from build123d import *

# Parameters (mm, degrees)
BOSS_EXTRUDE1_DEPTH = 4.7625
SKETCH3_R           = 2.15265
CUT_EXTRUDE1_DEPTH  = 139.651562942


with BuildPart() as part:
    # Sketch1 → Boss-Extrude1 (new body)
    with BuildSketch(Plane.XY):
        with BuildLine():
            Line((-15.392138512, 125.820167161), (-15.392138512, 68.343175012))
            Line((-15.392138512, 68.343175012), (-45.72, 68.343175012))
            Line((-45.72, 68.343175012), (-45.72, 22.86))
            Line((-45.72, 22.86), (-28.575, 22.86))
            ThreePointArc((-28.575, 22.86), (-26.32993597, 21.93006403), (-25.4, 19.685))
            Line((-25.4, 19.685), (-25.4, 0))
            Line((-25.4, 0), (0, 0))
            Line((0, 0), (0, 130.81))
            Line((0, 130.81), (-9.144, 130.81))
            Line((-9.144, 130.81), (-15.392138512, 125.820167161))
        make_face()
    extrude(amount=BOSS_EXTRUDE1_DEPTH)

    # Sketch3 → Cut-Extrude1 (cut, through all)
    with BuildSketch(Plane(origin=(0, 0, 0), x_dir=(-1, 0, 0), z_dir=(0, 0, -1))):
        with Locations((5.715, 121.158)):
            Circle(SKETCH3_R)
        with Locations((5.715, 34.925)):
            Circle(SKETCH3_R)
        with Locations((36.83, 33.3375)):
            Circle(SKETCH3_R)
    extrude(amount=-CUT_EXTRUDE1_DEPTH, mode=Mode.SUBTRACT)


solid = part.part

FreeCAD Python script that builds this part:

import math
import FreeCAD as App
import Part
import Sketcher

V = App.Vector
Q = App.Units.Quantity

doc = App.newDocument("Part")
body = doc.addObject("PartDesign::Body", "Body")

sketch1 = body.newObject("Sketcher::SketchObject", "Sketch")
sketch1.AttachmentSupport = (doc.getObject("XY_Plane"), [""])
sketch1.MapMode = "FlatFace"
sketch1.addGeometry(Part.LineSegment(V(-15.4, 125.8, 0), V(-15.4, 68.3, 0)), False)
sketch1.addGeometry(Part.LineSegment(V(-15.4, 68.3, 0), V(-45.7, 68.3, 0)), False)
sketch1.addGeometry(Part.LineSegment(V(-45.7, 68.3, 0), V(-45.7, 22.9, 0)), False)
sketch1.addGeometry(Part.LineSegment(V(-45.7, 22.9, 0), V(-28.6, 22.9, 0)), False)
sketch1.addGeometry(Part.ArcOfCircle(Part.Circle(V(-28.6, 19.7, 0), V(0, 0, 1), 3.2), math.radians(0), math.radians(90)), False)
sketch1.addGeometry(Part.LineSegment(V(-25.4, 19.7, 0), V(-25.4, 0, 0)), False)
sketch1.addGeometry(Part.LineSegment(V(-25.4, 0, 0), V(0, 0, 0)), False)
sketch1.addGeometry(Part.LineSegment(V(0, 0, 0), V(0, 130.8, 0)), False)
sketch1.addGeometry(Part.LineSegment(V(0, 130.8, 0), V(-9.1, 130.8, 0)), False)
sketch1.addGeometry(Part.LineSegment(V(-9.1, 130.8, 0), V(-15.4, 125.8, 0)), False)
sketch1.addConstraint(Sketcher.Constraint("Coincident", 0, 2, 1, 1))
sketch1.addConstraint(Sketcher.Constraint("Coincident", 1, 2, 2, 1))
sketch1.addConstraint(Sketcher.Constraint("Coincident", 2, 2, 3, 1))
sketch1.addConstraint(Sketcher.Constraint("Tangent", 3, 2, 4, 2))
sketch1.addConstraint(Sketcher.Constraint("Tangent", 4, 1, 5, 1))
sketch1.addConstraint(Sketcher.Constraint("Coincident", 5, 2, 6, 1))
sketch1.addConstraint(Sketcher.Constraint("Coincident", 6, 2, 7, 1))
sketch1.addConstraint(Sketcher.Constraint("Coincident", 7, 2, 8, 1))
sketch1.addConstraint(Sketcher.Constraint("Coincident", 8, 2, 9, 1))
sketch1.addConstraint(Sketcher.Constraint("Coincident", 9, 2, 0, 1))
sketch1.addConstraint(Sketcher.Constraint("Vertical", 0))
sketch1.addConstraint(Sketcher.Constraint("Horizontal", 1))
sketch1.addConstraint(Sketcher.Constraint("Vertical", 2))
sketch1.addConstraint(Sketcher.Constraint("Horizontal", 3))
sketch1.addConstraint(Sketcher.Constraint("Vertical", 5))
sketch1.addConstraint(Sketcher.Constraint("Horizontal", 6))
sketch1.addConstraint(Sketcher.Constraint("Vertical", 7))
sketch1.addConstraint(Sketcher.Constraint("Horizontal", 8))
sketch1.addConstraint(Sketcher.Constraint("Coincident", 6, 2, -1, 1))
sketch1.addConstraint(Sketcher.Constraint("DistanceX", 6, 1, 6, 2, Q("1 in")))
sketch1.addConstraint(Sketcher.Constraint("Radius", 4, Q("0.125 in")))
sketch1.addConstraint(Sketcher.Constraint("DistanceX", 8, 2, 8, 1, Q("0.36 in")))
sketch1.addConstraint(Sketcher.Constraint("DistanceY", 7, 1, 7, 2, Q("5.15 in")))
sketch1.addConstraint(Sketcher.Constraint("DistanceX", 1, 2, -1, 1, Q("1.8 in")))
sketch1.addConstraint(Sketcher.Constraint("DistanceY", -1, 1, 2, 2, Q("0.9 in")))
sketch1.addConstraint(Sketcher.Constraint("DistanceX", 1, 2, 1, 1, 30.327861))
sketch1.addConstraint(Sketcher.Constraint("DistanceY", 0, 2, 0, 1, 57.476992))
sketch1.addConstraint(Sketcher.Constraint("DistanceY", 2, 2, 2, 1, 45.483175))
pad1 = body.newObject("PartDesign::Pad", "Pad")
pad1.Profile = sketch1
pad1.Length = Q("0.1875 in")

sketch2 = body.newObject("Sketcher::SketchObject", "Sketch001")
sketch2.AttachmentSupport = (doc.getObject("XY_Plane"), [""])
sketch2.MapMode = "FlatFace"
sketch2.addGeometry(Part.Circle(V(-5.7, 121.2, 0), V(0, 0, 1), 2.2), False)
sketch2.addGeometry(Part.Circle(V(-5.7, 34.9, 0), V(0, 0, 1), 2.2), False)
sketch2.addGeometry(Part.Circle(V(-36.8, 33.3, 0), V(0, 0, 1), 2.2), False)
sketch2.addConstraint(Sketcher.Constraint("Equal", 0, 1))
sketch2.addConstraint(Sketcher.Constraint("Equal", 1, 2))
sketch2.addConstraint(Sketcher.Constraint("Vertical", 0, 3, 1, 3))
sketch2.addConstraint(Sketcher.Constraint("Diameter", 0, Q("0.1695 in")))
sketch2.addConstraint(Sketcher.Constraint("DistanceY", -1, 1, 0, 3, Q("4.77 in")))
sketch2.addConstraint(Sketcher.Constraint("DistanceX", 2, 3, -1, 1, Q("1.45 in")))
sketch2.addConstraint(Sketcher.Constraint("DistanceX", 0, 3, -1, 1, Q("0.225 in")))
sketch2.addConstraint(Sketcher.Constraint("DistanceY", -1, 1, 1, 3, Q("1.375 in")))
sketch2.addConstraint(Sketcher.Constraint("DistanceY", -1, 1, 2, 3, Q("1.3125 in")))
pocket1 = body.newObject("PartDesign::Pocket", "Pocket")
pocket1.Profile = sketch2
pocket1.Type = "ThroughAll"
pocket1.Reversed = True

doc.recompute()
